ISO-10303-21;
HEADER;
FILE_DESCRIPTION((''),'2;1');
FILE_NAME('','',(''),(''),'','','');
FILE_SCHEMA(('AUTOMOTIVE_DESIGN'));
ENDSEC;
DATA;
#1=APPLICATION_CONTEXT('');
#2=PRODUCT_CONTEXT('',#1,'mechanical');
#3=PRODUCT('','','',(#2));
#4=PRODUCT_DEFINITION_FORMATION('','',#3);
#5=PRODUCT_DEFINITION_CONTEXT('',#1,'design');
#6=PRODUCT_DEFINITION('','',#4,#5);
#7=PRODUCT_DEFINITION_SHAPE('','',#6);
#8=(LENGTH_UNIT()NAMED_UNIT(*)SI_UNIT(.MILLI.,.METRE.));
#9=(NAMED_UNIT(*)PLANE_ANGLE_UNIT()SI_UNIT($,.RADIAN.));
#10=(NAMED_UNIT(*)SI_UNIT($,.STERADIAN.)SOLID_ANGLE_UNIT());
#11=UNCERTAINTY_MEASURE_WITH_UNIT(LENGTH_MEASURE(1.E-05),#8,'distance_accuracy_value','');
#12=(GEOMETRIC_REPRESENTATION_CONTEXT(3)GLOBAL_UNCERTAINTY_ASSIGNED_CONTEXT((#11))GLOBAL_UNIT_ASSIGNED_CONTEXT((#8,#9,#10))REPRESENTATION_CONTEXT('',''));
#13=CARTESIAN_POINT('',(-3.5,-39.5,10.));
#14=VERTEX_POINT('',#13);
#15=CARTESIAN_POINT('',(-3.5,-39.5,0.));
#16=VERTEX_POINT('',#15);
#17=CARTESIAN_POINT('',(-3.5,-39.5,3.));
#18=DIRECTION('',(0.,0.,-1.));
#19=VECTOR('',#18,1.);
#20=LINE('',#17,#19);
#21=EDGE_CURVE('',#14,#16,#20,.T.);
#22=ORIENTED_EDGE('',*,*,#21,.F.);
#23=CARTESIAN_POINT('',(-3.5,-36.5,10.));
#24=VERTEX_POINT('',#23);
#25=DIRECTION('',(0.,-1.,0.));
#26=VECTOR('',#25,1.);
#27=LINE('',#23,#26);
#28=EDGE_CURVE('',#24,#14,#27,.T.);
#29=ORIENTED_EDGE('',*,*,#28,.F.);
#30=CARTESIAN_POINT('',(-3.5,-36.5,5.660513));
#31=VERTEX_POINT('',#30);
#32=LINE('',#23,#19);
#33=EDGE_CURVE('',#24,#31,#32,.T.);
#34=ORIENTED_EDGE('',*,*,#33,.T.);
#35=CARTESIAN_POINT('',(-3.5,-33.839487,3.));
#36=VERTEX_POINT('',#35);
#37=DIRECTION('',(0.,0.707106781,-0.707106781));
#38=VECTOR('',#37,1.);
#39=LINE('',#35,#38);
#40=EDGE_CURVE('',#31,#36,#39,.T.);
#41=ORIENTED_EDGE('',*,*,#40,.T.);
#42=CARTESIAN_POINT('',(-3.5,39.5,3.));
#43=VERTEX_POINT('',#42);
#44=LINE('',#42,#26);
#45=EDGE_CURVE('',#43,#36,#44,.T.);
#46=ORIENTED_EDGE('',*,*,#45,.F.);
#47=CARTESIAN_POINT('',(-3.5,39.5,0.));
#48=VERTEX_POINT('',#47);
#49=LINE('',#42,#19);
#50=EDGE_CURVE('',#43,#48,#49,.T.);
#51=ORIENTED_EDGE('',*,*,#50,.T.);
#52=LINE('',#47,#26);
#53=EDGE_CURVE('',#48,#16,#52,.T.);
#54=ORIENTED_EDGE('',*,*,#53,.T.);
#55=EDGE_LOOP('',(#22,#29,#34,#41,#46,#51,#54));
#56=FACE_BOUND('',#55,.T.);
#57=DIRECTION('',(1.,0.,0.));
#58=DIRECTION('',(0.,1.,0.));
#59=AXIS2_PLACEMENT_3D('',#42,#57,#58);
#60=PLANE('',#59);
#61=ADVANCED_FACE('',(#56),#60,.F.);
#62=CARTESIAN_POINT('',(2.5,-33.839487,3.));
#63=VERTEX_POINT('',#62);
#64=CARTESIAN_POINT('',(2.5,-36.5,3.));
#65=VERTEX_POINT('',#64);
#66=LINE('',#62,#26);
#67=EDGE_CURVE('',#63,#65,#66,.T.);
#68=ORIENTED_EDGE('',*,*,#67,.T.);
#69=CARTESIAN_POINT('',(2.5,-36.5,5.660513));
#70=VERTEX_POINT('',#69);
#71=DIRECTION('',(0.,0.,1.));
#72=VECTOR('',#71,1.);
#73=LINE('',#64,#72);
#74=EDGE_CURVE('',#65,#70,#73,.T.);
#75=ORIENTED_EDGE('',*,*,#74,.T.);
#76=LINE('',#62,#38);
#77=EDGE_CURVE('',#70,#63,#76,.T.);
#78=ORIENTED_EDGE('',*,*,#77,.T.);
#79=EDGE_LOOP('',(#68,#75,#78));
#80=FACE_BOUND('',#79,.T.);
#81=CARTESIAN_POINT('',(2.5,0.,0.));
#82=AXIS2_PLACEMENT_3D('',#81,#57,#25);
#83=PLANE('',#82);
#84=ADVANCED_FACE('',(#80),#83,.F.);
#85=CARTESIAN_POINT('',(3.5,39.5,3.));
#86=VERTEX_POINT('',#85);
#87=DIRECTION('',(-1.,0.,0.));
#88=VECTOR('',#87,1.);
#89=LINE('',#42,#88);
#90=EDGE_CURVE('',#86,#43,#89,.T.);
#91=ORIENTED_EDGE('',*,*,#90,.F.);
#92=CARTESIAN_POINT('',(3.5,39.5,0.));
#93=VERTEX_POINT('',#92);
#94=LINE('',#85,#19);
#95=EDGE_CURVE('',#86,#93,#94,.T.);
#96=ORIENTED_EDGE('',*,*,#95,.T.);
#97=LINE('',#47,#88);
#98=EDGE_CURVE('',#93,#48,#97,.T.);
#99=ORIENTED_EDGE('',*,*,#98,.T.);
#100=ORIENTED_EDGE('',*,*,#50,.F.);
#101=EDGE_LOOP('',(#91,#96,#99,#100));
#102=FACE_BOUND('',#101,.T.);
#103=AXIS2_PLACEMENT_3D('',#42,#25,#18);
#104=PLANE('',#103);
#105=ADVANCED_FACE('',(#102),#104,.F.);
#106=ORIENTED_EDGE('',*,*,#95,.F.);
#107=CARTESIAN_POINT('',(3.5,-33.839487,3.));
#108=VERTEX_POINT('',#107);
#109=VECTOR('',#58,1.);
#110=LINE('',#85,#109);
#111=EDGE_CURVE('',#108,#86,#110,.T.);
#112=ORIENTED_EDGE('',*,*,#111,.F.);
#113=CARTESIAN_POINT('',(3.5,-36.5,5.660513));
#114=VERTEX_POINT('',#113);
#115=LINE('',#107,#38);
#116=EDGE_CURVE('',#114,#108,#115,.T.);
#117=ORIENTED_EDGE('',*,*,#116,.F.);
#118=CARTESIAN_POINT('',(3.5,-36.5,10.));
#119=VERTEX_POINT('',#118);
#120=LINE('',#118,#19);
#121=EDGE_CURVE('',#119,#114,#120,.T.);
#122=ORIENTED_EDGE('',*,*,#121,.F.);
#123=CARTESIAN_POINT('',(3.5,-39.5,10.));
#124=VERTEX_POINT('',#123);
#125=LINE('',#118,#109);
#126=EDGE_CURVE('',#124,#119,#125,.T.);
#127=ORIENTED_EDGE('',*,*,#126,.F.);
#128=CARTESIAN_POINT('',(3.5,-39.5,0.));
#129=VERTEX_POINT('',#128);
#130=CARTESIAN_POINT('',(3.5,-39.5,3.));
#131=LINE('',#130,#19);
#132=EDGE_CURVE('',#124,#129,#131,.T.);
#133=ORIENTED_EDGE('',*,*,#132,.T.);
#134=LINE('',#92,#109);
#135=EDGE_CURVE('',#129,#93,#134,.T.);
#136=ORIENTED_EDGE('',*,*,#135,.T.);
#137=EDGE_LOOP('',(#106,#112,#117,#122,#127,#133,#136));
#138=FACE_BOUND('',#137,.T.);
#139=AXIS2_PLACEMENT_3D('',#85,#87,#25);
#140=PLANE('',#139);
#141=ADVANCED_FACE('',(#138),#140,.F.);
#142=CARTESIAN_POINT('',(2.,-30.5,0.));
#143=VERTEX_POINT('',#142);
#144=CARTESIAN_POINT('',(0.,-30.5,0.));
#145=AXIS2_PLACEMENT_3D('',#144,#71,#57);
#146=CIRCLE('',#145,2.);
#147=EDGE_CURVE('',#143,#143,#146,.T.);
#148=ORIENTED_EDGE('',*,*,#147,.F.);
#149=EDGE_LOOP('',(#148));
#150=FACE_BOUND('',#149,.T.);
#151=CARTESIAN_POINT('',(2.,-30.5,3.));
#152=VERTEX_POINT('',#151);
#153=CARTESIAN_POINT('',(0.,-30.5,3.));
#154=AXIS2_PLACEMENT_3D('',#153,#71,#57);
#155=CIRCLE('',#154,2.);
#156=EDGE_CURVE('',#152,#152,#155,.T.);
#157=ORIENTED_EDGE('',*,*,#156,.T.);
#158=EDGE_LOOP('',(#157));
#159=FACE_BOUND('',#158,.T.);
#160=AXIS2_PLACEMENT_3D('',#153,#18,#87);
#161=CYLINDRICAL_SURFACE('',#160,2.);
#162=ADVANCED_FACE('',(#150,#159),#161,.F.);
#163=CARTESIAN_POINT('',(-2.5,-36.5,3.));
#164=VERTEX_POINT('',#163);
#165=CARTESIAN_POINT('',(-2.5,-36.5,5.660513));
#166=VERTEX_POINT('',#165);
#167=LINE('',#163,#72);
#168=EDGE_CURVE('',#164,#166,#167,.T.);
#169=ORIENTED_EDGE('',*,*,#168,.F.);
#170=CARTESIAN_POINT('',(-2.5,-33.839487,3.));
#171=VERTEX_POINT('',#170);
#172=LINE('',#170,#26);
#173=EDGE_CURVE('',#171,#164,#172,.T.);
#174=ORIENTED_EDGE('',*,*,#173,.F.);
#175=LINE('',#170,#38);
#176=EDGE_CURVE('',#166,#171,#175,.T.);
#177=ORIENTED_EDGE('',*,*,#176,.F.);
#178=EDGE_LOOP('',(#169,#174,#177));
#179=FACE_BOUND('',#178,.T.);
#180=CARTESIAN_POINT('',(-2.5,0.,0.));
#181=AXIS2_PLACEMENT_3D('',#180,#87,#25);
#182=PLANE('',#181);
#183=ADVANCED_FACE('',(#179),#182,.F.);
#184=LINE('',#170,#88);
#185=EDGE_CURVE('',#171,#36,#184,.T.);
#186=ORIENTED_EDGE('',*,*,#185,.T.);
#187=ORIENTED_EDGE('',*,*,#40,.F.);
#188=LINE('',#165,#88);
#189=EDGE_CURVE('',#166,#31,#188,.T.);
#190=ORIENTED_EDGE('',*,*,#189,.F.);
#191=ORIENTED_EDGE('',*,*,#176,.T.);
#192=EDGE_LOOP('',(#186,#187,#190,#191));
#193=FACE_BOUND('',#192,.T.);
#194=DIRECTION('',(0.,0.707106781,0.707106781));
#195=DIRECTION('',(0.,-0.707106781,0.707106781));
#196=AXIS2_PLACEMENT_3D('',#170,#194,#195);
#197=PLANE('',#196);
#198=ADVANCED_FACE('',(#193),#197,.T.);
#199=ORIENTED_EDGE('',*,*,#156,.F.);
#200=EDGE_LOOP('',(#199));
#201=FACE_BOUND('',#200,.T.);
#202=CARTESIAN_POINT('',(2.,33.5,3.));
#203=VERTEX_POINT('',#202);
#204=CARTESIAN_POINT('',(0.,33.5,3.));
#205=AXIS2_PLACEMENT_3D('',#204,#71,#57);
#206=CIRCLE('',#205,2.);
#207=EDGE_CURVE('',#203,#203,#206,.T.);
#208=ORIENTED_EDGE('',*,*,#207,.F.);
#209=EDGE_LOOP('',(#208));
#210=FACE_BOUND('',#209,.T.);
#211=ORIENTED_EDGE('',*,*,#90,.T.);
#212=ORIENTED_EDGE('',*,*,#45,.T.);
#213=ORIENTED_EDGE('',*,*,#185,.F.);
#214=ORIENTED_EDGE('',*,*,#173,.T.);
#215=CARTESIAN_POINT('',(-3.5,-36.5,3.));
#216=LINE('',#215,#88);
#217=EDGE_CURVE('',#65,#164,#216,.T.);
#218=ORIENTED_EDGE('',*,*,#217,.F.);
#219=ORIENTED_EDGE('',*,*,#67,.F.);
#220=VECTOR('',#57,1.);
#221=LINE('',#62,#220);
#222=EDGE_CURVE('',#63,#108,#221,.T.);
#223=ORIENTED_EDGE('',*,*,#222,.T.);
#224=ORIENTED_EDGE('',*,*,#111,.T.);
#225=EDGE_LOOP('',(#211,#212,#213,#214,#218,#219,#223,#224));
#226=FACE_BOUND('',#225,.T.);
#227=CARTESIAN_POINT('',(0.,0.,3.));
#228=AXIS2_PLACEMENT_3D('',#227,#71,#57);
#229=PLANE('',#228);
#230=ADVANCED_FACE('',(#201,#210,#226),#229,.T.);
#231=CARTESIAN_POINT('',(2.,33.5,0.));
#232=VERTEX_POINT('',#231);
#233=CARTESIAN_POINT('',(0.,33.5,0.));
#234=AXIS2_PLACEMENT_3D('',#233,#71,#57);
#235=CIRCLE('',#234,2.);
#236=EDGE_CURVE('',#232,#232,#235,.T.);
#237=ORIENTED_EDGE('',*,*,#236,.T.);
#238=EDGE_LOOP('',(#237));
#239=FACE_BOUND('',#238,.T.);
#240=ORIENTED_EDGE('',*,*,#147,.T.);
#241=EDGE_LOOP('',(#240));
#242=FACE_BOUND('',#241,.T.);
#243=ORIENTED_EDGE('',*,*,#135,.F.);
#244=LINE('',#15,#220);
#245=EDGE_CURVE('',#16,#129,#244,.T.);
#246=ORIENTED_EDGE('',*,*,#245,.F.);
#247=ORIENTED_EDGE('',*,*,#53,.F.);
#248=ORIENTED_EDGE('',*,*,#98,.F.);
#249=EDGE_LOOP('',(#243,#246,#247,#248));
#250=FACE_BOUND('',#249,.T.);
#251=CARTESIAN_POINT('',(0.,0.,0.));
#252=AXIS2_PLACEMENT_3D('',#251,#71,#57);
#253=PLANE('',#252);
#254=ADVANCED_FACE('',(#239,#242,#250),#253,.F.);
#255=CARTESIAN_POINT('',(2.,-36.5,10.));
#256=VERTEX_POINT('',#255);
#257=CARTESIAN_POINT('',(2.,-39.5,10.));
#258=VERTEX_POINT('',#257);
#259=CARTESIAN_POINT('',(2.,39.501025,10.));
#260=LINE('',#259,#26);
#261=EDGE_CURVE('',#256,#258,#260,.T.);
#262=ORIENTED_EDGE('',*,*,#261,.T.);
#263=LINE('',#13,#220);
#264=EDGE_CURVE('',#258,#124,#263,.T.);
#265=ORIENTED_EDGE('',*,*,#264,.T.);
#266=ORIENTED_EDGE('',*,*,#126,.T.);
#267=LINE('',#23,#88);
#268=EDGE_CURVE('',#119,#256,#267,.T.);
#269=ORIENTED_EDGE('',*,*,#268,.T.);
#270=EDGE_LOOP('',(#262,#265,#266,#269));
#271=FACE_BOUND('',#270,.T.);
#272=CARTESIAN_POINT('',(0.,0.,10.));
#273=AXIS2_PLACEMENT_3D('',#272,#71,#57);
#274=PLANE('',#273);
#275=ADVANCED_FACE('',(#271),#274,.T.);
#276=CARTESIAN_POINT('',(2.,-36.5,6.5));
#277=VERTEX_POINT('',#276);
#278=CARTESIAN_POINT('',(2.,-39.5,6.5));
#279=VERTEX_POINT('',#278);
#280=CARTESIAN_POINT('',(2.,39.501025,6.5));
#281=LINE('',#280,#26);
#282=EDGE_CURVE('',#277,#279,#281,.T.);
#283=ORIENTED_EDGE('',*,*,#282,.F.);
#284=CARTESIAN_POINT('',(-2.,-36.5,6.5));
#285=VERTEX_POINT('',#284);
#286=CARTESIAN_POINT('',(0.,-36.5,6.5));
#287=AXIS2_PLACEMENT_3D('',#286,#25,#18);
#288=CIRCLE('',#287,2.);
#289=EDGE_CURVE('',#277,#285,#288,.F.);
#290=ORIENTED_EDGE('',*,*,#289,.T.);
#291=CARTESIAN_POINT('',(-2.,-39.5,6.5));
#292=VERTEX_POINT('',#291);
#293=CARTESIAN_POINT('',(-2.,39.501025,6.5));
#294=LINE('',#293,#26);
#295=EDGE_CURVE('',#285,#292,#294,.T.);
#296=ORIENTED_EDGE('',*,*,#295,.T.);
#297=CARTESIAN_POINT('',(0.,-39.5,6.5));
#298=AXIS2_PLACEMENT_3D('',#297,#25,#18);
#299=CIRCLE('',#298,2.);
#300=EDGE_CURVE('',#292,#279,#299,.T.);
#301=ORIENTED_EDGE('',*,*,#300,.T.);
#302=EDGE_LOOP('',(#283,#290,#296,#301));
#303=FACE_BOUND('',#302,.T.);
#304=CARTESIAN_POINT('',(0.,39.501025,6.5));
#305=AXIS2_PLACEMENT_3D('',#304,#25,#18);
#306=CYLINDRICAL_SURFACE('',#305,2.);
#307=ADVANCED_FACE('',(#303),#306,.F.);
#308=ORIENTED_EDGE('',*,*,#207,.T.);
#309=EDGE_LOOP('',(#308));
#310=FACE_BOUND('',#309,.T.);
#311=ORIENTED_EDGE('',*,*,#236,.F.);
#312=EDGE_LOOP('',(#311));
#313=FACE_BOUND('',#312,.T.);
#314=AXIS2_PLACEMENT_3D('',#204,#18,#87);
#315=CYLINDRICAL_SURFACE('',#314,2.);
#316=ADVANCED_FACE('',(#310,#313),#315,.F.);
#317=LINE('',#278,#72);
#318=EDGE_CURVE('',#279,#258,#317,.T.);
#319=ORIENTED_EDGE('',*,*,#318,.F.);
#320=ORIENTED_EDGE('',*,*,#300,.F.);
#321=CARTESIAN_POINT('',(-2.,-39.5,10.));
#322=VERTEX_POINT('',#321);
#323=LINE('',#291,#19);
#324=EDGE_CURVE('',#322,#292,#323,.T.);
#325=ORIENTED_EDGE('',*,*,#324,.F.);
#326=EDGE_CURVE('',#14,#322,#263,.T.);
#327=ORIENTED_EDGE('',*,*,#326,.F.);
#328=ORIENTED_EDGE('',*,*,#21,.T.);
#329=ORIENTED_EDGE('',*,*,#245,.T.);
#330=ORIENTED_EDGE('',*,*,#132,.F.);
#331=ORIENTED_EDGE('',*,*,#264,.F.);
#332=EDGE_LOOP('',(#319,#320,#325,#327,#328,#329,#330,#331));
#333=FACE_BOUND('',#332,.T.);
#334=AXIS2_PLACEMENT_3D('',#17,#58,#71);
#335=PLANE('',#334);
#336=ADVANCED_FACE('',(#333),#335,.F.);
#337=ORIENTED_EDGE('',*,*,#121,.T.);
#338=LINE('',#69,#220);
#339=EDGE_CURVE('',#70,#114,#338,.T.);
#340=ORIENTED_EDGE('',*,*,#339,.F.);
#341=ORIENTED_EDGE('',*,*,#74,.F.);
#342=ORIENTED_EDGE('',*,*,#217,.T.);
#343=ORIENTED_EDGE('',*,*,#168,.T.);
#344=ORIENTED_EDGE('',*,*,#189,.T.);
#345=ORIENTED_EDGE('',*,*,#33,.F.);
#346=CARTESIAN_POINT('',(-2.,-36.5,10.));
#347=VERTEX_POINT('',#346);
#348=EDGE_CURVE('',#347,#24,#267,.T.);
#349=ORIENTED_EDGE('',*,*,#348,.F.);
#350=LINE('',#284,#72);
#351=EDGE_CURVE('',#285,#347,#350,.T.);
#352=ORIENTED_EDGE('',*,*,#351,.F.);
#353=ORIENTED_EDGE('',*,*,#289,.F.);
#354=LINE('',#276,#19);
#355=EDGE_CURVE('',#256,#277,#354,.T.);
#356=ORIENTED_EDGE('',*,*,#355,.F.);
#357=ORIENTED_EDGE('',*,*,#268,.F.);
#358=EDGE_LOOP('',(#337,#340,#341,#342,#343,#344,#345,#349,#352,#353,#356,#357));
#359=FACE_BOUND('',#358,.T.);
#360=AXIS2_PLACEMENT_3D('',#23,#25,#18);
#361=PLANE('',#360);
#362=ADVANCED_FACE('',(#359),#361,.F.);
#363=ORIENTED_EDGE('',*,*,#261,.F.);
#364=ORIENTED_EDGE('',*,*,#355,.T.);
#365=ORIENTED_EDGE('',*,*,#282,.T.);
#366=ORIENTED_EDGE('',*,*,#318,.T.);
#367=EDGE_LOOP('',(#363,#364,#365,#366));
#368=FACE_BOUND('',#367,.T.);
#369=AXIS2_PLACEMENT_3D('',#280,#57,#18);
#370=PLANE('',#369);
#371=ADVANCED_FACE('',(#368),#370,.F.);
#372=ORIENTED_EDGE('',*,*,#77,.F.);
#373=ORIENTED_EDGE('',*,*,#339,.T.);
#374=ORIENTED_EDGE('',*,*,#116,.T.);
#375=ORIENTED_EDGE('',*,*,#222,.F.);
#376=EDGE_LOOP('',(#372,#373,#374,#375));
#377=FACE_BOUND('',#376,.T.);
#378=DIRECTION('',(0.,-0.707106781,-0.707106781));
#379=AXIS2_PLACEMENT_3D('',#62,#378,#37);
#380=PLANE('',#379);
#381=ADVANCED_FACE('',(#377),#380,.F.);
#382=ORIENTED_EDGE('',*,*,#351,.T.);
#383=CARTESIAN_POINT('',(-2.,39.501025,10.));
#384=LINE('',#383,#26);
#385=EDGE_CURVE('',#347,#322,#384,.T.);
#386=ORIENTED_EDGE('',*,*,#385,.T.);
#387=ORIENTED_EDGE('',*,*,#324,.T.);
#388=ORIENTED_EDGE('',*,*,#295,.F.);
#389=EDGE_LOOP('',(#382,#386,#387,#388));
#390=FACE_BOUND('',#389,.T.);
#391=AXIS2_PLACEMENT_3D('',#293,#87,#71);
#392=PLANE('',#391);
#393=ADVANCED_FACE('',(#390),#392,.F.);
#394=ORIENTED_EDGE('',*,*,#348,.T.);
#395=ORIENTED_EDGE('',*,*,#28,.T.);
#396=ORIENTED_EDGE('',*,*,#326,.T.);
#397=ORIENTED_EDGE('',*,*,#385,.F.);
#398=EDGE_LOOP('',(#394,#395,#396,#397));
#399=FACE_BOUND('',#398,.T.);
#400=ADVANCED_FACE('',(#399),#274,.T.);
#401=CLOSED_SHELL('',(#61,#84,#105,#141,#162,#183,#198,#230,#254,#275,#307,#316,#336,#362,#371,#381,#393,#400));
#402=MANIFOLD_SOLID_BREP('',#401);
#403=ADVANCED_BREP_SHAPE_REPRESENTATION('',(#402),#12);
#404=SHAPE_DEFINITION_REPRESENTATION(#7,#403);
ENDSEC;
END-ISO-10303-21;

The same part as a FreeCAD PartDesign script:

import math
import FreeCAD as App
import Part
import Sketcher
from FreeCAD import Vector
Q = App.Units.Quantity


def add_polygon(sketch, points):
    """Adds a closed chain of lines whose ends are joined by coincident constraints."""
    first, n = sketch.GeometryCount, len(points)
    for a, b in zip(points, points[1:] + points[:1]):
        sketch.addGeometry(Part.LineSegment(App.Vector(*a, 0), App.Vector(*b, 0)), False)
    for i in range(n):
        sketch.addConstraint(Sketcher.Constraint("Coincident", first + i, 2, first + (i + 1) % n, 1))

doc = App.newDocument("Part")
body = doc.addObject("PartDesign::Body", "Body")

# Sketch on XY plane
sketch1 = body.newObject("Sketcher::SketchObject", "Sketch")
sketch1.AttachmentSupport = (doc.getObject("XY_Plane"), [""])
sketch1.MapMode = "FlatFace"
add_polygon(sketch1, [(-3.5, 39.5), (-3.5, -39.5), (3.5, -39.5), (3.5, 39.5)])  # lines 0-3
sketch1.addGeometry(Part.Circle(Vector(0, -30.5, 0), Vector(0, 0, 1), 2), False)  # 4
sketch1.addGeometry(Part.Circle(Vector(0, 33.5, 0), Vector(0, 0, 1), 2), False)  # 5
sketch1.addConstraint([
    Sketcher.Constraint("Vertical", 0),
    Sketcher.Constraint("Horizontal", 1),
    Sketcher.Constraint("Vertical", 2),
    Sketcher.Constraint("Horizontal", 3),
    Sketcher.Constraint("Equal", 4, 5),
    Sketcher.Constraint("Symmetric", 0, 2, 2, 2, -1, 1),
    Sketcher.Constraint("PointOnObject", 4, 3, -2),
    Sketcher.Constraint("PointOnObject", 5, 3, -2),
    Sketcher.Constraint("Diameter", 4, Q("4 mm")),
    Sketcher.Constraint("DistanceX", 1, 1, 1, 2, Q("7 mm")),
    Sketcher.Constraint("DistanceY", 0, 2, 0, 1, Q("79 mm")),
    Sketcher.Constraint("DistanceY", 4, 3, 5, 3, Q("64 mm")),
    Sketcher.Constraint("DistanceY", 0, 2, 4, 3, Q("9 mm")),
])
pad1 = body.newObject("PartDesign::Pad", "Pad")
pad1.Profile = sketch1
pad1.Length = 3

# Sketch on XY plane
sketch2 = body.newObject("Sketcher::SketchObject", "Sketch001")
sketch2.AttachmentSupport = (doc.getObject("XY_Plane"), [""])
sketch2.MapMode = "FlatFace"
sketch2.AttachmentOffset = App.Placement(Vector(0, 0, 3), App.Rotation())
add_polygon(sketch2, [(-3.5, -36.5), (-3.5, -39.5), (3.5, -39.5), (3.5, -36.5)])  # lines 0-3
sketch2.addConstraint([
    Sketcher.Constraint("Vertical", 0),
    Sketcher.Constraint("Horizontal", 1),
    Sketcher.Constraint("Vertical", 2),
    Sketcher.Constraint("Horizontal", 3),
    Sketcher.Constraint("DistanceX", 1, 1, 1, 2, Q("7 mm")),
    Sketcher.Constraint("DistanceY", 0, 2, 0, 1, Q("3 mm")),
    Sketcher.Constraint("DistanceX", 0, 2, -1, 1, Q("3.5 mm")),
    Sketcher.Constraint("DistanceY", 0, 2, -1, 1, Q("39.5 mm")),
])
pad2 = body.newObject("PartDesign::Pad", "Pad001")
pad2.Profile = sketch2
pad2.Length = 7

# Sketch on XZ plane
sketch3 = body.newObject("Sketcher::SketchObject", "Sketch002")
sketch3.AttachmentSupport = (doc.getObject("XZ_Plane"), [""])
sketch3.MapMode = "FlatFace"
sketch3.AttachmentOffset = App.Placement(Vector(0, 0, 39.5), App.Rotation())
sketch3.addGeometry([
    Part.LineSegment(Vector(-2, 10, 0), Vector(-2, 6.5, 0)),
    Part.ArcOfCircle(Part.Circle(Vector(0, 6.5, 0), Vector(0, 0, 1), 2), math.radians(180), math.radians(360)),
    Part.LineSegment(Vector(2, 6.5, 0), Vector(2, 10, 0)),
    Part.LineSegment(Vector(2, 10, 0), Vector(-2, 10, 0)),
], False)
sketch3.addConstraint([
    Sketcher.Constraint("Tangent", 0, 2, 1, 1),
    Sketcher.Constraint("Tangent", 1, 2, 2, 1),
    Sketcher.Constraint("Coincident", 2, 2, 3, 1),
    Sketcher.Constraint("Coincident", 3, 2, 0, 1),
    Sketcher.Constraint("Vertical", 0),
    Sketcher.Constraint("Vertical", 2),
    Sketcher.Constraint("Horizontal", 3),
    Sketcher.Constraint("PointOnObject", 1, 3, -2),
    Sketcher.Constraint("Radius", 1, Q("2 mm")),
    Sketcher.Constraint("DistanceY", 0, 2, 0, 1, Q("3.5 mm")),
    Sketcher.Constraint("DistanceY", -1, 1, 2, 2, Q("10 mm")),
])
pocket1 = body.newObject("PartDesign::Pocket", "Pocket")
pocket1.Profile = sketch3
pocket1.Type = "UpToFirst"

# Sketch on YZ plane
sketch4 = body.newObject("Sketcher::SketchObject", "Sketch003")
sketch4.AttachmentSupport = (doc.getObject("YZ_Plane"), [""])
sketch4.MapMode = "FlatFace"
sketch4.AttachmentOffset = App.Placement(Vector(0, 0, -3.5), App.Rotation())
add_polygon(sketch4, [(-36.5, 5.660513), (-33.839487, 3), (-36.5, 3)])  # lines 0-2
sketch4.addConstraint([
    Sketcher.Constraint("Horizontal", 1),
    Sketcher.Constraint("Vertical", 2),
    Sketcher.Constraint("Equal", 1, 2),
    Sketcher.Constraint("DistanceY", -1, 1, 0, 2, Q("3 mm")),
    Sketcher.Constraint("DistanceX", 1, 2, -1, 1, Q("36.5 mm")),
    Sketcher.Constraint("DistanceX", 1, 2, 1, 1, Q("2.660513 mm")),
])
pad3 = body.newObject("PartDesign::Pad", "Pad002")
pad3.Profile = sketch4
pad3.Length = 1
doc.recompute()

mirrored = body.newObject("PartDesign::Mirrored", "Mirrored")
mirrored.Originals = [pad3]
mirrored.MirrorPlane = (doc.getObject("YZ_Plane"), [""])
body.Tip = mirrored

doc.recompute()
